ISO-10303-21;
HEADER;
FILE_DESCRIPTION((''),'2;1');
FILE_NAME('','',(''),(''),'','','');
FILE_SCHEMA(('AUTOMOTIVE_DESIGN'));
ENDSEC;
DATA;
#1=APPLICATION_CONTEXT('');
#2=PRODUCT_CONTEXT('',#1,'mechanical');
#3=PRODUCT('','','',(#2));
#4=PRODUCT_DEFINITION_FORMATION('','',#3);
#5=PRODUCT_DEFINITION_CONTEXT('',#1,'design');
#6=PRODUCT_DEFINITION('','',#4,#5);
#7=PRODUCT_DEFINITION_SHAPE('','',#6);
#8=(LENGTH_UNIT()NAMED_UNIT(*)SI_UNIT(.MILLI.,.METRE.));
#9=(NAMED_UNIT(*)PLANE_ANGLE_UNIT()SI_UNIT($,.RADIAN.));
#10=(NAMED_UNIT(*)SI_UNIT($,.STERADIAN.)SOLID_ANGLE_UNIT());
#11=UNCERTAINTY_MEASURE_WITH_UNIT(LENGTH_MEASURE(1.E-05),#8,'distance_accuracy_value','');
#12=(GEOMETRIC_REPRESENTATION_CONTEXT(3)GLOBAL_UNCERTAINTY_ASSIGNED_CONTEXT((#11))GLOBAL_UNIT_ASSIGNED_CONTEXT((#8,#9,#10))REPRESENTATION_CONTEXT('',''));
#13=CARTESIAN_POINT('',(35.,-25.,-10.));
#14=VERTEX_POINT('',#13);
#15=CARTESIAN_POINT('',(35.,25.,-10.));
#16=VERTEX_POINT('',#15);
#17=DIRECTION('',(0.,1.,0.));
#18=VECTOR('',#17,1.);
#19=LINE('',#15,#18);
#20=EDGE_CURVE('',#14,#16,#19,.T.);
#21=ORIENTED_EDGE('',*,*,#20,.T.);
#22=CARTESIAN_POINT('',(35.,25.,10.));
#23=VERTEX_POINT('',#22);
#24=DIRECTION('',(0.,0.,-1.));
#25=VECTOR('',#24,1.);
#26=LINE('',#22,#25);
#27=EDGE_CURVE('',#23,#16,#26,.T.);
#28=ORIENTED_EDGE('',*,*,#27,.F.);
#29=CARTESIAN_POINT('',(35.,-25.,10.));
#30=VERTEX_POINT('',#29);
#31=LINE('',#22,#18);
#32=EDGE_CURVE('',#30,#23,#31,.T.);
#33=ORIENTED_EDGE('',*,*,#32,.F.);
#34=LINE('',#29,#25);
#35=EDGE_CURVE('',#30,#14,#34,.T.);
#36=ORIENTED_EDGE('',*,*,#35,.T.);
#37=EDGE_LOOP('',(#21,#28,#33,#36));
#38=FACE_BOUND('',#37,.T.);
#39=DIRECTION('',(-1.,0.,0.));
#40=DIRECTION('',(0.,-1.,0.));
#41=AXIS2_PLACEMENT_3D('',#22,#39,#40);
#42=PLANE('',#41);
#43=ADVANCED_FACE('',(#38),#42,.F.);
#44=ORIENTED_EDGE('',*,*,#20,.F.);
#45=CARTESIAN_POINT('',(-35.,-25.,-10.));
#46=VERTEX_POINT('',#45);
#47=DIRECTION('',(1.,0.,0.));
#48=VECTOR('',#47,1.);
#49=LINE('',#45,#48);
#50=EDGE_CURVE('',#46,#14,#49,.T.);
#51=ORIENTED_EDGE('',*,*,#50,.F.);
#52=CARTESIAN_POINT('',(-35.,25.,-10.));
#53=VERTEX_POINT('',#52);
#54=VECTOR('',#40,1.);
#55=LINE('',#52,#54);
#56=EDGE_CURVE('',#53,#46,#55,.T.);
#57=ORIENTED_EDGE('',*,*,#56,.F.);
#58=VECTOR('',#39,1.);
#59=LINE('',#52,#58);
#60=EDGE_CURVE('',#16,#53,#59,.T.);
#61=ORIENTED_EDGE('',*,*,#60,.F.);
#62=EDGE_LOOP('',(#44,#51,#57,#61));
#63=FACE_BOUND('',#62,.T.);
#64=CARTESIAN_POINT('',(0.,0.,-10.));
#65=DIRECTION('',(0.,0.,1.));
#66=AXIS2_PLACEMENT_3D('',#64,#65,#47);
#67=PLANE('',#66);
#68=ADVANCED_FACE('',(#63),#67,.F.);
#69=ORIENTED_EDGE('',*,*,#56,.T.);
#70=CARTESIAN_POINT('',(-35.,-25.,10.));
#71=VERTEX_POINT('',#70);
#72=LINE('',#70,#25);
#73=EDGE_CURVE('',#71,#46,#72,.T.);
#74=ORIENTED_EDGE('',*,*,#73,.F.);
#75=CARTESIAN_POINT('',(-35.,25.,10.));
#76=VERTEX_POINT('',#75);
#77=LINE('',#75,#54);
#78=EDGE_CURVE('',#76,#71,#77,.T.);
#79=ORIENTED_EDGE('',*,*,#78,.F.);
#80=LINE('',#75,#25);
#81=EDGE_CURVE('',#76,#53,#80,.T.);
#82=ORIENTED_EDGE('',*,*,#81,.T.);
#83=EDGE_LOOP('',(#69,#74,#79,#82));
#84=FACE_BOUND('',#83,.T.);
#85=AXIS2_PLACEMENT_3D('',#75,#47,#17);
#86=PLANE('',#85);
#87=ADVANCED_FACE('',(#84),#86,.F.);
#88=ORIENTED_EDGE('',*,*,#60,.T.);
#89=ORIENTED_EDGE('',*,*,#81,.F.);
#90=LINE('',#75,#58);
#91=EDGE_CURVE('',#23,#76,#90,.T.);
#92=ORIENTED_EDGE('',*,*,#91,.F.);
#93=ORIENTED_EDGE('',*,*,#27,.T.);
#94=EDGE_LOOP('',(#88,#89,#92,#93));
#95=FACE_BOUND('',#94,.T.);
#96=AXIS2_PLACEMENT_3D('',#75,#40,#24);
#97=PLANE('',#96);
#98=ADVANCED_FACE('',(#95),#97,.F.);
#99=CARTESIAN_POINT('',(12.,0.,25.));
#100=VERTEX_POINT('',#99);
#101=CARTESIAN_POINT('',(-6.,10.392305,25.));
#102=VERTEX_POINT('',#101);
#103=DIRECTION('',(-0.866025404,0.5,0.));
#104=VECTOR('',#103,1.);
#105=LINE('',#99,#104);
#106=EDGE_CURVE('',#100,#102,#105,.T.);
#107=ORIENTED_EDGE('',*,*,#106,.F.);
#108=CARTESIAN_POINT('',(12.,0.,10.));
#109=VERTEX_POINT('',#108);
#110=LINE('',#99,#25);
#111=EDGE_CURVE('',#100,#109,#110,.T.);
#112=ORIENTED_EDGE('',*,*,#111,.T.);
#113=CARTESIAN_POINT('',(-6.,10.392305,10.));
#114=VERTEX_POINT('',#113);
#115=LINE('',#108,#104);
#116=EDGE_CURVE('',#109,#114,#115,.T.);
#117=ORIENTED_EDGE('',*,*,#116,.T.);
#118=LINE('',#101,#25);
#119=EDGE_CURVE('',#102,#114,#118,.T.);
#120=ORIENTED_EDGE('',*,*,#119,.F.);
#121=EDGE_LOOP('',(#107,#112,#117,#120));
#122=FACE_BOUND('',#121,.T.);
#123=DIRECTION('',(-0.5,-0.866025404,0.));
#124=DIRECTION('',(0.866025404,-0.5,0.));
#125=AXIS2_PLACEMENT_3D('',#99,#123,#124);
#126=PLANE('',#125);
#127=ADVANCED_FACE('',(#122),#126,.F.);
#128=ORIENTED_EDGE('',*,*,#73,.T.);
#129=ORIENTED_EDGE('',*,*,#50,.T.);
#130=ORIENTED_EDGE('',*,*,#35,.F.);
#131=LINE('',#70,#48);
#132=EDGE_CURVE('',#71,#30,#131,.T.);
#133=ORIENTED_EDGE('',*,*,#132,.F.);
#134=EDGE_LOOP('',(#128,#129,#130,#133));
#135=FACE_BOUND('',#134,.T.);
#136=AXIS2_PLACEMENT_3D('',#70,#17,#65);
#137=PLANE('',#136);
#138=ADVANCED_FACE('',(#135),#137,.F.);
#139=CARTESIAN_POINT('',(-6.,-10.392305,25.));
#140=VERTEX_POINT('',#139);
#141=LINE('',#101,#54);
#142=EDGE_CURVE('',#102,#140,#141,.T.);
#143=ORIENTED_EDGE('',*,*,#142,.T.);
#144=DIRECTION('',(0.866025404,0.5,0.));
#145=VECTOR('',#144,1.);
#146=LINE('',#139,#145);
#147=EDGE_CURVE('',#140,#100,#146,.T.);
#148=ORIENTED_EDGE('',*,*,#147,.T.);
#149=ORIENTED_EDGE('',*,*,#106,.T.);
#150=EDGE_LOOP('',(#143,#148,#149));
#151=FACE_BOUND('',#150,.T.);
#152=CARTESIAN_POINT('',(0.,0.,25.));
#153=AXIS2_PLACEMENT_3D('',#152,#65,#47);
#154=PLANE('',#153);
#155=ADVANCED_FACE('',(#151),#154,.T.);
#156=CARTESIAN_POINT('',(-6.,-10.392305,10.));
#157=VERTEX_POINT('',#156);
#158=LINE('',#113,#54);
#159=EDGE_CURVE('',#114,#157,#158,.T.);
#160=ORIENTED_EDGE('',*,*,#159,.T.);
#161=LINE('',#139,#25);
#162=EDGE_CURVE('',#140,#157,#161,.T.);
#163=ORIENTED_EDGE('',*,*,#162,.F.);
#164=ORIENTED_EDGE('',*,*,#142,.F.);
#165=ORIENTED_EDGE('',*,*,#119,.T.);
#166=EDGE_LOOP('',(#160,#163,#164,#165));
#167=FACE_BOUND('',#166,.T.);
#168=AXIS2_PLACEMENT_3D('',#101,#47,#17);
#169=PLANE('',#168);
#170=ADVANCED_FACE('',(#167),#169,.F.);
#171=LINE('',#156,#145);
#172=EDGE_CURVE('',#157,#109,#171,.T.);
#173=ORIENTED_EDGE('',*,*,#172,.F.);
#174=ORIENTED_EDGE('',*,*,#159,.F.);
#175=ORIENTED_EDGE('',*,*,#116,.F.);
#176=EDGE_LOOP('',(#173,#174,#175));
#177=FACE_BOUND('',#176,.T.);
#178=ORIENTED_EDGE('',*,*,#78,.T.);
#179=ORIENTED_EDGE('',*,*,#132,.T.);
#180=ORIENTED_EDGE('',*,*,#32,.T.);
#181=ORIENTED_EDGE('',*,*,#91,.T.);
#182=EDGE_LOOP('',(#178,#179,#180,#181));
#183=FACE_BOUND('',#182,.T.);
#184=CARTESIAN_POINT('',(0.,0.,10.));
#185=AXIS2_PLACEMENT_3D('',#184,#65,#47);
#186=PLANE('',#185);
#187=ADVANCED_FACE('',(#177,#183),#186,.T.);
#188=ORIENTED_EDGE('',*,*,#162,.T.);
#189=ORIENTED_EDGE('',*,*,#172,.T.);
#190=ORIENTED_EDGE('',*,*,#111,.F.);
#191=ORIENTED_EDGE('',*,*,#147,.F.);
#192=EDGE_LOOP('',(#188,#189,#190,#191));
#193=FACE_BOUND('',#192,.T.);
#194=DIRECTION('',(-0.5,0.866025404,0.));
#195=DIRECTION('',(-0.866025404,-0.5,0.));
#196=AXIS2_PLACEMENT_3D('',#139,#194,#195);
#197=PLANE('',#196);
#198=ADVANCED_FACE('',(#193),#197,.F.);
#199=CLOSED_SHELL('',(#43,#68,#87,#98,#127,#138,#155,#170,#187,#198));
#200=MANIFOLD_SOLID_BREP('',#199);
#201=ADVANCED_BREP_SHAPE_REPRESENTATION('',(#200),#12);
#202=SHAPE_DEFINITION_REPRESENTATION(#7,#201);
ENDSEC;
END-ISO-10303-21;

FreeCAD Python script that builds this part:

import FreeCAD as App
import Part
import Sketcher

V = App.Vector
Q = App.Units.Quantity


def add_polygon(sketch, points):
    """Adds a closed chain of lines whose ends are joined by coincident constraints."""
    first, n = sketch.GeometryCount, len(points)
    for a, b in zip(points, points[1:] + points[:1]):
        sketch.addGeometry(Part.LineSegment(App.Vector(*a, 0), App.Vector(*b, 0)), False)
    for i in range(n):
        sketch.addConstraint(Sketcher.Constraint("Coincident", first + i, 2, first + (i + 1) % n, 1))

doc = App.newDocument("Part")
body = doc.addObject("PartDesign::Body", "Body")

# Sketch on XY plane
sketch1 = body.newObject("Sketcher::SketchObject", "Sketch")
sketch1.AttachmentSupport = (doc.getObject("XY_Plane"), [""])
sketch1.MapMode = "FlatFace"
add_polygon(sketch1, [(-35, 25), (-35, -25), (35, -25), (35, 25)])  # lines 0-3
sketch1.addConstraint([
    Sketcher.Constraint("Vertical", 0),
    Sketcher.Constraint("Horizontal", 1),
    Sketcher.Constraint("Vertical", 2),
    Sketcher.Constraint("Horizontal", 3),
    Sketcher.Constraint("Symmetric", 0, 2, 2, 2, -1, 1),
    Sketcher.Constraint("DistanceX", 1, 1, 1, 2, 70.0),
    Sketcher.Constraint("DistanceY", 0, 2, 0, 1, 50.0),
])
pad1 = body.newObject("PartDesign::Pad", "Pad")
pad1.Profile = sketch1
pad1.Length = 20
pad1.Midplane = True

# Sketch on XY plane
sketch2 = body.newObject("Sketcher::SketchObject", "Sketch001")
sketch2.AttachmentSupport = (doc.getObject("XY_Plane"), [""])
sketch2.MapMode = "FlatFace"
sketch2.AttachmentOffset = App.Placement(V(0, 0, 10), App.Rotation())
add_polygon(sketch2, [(12, 0), (-6, 10.392305), (-6, -10.392305)])  # lines 0-2
sketch2.addConstraint([
    Sketcher.Constraint("Vertical", 1),
    Sketcher.Constraint("PointOnObject", 2, 2, -1),
    Sketcher.Constraint("Equal", 0, 2),
    Sketcher.Constraint("Angle", 0, Q("150 deg")),
    Sketcher.Constraint("DistanceX", 0, 2, -1, 1, 6.0),
    Sketcher.Constraint("DistanceX", -1, 1, 2, 2, 12.0),
])
pad2 = body.newObject("PartDesign::Pad", "Pad001")
pad2.Profile = sketch2
pad2.Length = 15

doc.recompute()
